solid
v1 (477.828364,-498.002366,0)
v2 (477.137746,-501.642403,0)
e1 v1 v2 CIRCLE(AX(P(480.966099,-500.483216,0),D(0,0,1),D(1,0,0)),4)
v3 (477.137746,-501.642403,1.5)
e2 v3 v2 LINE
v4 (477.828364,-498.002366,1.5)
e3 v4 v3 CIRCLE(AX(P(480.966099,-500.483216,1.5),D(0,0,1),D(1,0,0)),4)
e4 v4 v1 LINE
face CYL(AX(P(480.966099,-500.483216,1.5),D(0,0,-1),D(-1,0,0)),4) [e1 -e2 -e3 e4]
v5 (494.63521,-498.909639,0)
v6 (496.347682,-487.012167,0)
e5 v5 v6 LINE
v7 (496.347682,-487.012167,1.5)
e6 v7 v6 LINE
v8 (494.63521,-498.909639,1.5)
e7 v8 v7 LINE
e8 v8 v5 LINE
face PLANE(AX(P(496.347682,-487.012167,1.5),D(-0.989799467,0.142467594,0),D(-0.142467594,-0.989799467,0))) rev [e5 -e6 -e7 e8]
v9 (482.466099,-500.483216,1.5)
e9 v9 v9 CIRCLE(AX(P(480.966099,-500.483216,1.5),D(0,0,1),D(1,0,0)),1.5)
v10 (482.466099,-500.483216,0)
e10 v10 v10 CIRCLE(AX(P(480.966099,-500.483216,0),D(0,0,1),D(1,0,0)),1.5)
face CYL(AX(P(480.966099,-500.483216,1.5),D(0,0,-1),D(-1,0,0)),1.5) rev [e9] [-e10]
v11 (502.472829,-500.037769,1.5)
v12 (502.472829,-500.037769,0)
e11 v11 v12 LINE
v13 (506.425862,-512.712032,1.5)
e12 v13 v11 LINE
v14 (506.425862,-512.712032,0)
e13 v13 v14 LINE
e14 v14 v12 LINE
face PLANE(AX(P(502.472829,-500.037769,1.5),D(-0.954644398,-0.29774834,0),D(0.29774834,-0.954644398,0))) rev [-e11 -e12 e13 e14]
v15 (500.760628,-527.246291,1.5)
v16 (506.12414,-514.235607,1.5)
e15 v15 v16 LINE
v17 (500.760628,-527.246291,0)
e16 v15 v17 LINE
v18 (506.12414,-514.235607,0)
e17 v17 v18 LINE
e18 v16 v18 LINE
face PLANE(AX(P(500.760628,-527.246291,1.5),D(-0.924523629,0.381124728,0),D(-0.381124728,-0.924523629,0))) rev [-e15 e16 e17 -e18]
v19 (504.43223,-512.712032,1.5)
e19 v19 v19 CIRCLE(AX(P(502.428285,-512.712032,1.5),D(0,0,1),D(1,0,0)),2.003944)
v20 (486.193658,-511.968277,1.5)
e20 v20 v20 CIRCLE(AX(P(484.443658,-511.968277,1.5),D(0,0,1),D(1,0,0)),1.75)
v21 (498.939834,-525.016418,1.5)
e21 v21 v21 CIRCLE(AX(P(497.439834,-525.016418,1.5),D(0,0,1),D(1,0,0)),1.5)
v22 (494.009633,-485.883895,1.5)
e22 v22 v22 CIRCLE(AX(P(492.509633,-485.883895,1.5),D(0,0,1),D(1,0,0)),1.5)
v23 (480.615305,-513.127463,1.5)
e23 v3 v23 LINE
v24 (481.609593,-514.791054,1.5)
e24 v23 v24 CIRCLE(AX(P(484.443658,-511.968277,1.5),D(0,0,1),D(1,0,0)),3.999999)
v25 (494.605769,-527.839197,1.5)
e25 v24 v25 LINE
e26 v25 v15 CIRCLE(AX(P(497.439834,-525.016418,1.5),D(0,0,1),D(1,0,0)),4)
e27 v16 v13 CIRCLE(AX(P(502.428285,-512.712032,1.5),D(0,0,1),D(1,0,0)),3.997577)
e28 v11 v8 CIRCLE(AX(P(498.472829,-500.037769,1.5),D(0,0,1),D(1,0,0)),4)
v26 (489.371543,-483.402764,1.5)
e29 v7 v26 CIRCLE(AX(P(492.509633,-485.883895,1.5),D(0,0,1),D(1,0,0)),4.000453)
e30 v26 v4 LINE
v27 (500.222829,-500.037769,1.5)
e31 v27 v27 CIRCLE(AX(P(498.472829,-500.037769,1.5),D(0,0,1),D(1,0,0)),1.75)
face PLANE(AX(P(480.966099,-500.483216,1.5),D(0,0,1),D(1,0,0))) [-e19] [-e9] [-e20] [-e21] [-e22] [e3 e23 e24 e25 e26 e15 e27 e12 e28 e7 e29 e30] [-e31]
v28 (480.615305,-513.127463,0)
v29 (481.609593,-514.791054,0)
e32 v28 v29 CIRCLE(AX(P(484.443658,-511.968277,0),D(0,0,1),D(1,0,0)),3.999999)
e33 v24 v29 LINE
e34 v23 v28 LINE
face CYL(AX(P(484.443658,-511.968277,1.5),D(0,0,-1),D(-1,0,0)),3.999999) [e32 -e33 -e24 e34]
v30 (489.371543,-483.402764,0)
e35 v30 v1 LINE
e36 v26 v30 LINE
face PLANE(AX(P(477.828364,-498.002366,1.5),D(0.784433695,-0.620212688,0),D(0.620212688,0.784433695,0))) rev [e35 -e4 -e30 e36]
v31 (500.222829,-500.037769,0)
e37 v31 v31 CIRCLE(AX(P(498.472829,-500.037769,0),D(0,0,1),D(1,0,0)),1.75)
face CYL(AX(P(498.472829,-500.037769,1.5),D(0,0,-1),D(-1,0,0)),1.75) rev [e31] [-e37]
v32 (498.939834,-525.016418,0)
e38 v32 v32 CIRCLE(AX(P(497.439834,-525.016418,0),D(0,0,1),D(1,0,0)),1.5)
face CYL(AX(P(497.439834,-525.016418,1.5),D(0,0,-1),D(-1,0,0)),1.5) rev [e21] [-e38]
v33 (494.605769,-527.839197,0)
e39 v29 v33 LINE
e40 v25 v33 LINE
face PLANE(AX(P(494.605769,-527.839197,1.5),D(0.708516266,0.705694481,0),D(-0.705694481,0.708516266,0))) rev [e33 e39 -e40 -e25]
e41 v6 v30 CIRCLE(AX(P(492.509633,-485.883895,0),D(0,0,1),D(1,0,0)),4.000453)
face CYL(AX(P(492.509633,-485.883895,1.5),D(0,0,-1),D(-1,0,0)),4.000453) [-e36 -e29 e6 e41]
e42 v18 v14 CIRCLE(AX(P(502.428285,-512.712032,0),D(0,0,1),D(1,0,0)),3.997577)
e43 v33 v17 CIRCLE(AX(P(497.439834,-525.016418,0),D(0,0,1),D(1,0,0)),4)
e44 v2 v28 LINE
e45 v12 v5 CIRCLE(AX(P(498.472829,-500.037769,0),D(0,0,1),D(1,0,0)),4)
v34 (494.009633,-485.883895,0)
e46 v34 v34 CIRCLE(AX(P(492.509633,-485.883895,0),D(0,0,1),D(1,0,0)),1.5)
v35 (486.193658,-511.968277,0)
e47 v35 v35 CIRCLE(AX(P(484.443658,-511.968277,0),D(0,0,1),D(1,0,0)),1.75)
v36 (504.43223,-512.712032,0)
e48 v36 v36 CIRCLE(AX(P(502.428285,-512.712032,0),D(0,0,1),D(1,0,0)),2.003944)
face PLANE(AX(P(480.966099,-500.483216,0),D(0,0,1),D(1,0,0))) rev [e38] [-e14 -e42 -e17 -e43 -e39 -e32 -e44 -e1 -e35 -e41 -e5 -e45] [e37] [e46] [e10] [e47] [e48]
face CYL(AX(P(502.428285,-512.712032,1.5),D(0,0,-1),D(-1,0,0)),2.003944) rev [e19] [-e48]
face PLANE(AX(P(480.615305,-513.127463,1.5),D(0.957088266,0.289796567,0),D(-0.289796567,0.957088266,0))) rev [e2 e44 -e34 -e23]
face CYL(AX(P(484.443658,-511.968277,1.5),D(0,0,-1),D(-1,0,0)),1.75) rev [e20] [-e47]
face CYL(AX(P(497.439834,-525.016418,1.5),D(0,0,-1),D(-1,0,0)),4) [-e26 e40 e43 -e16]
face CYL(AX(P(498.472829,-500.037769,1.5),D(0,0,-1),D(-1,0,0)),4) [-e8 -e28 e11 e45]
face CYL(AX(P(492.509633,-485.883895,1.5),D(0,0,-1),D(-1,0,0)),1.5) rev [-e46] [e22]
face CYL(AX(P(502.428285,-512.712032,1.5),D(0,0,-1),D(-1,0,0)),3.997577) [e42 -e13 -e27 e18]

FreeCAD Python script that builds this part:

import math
import FreeCAD as App
import Part
import Sketcher

V = App.Vector

doc = App.newDocument("Part")
body = doc.addObject("PartDesign::Body", "Body")

sketch1 = doc.addObject("Sketcher::SketchObject", "Sketch")
body.addObject(sketch1)
sketch1.AttachmentSupport = (doc.XY_Plane, [""])
sketch1.MapMode = "FlatFace"
sketch1.addGeometry(Part.LineSegment(V(481.609593, -514.791054, 0), V(494.605769, -527.839197, 0)), False)
sketch1.addGeometry(Part.ArcOfCircle(Part.Circle(V(497.439834, -525.016418, 0), V(0, 0, 1), 4), math.radians(-135.114323), math.radians(-33.880888)), False)
sketch1.addGeometry(Part.LineSegment(V(500.760628, -527.246291, 0), V(506.12414, -514.235607, 0)), False)
sketch1.addGeometry(Part.ArcOfCircle(Part.Circle(V(502.428285, -512.712032, 0), V(0, 0, 1), 3.997577), math.radians(-22.403368), math.radians(0)), False)
sketch1.addGeometry(Part.LineSegment(V(506.425862, -512.712032, 0), V(502.472829, -500.037769, 0)), False)
sketch1.addGeometry(Part.ArcOfCircle(Part.Circle(V(498.472829, -500.037769, 0), V(0, 0, 1), 4), math.radians(0), math.radians(163.618446)), False)
sketch1.addGeometry(Part.LineSegment(V(494.63521, -498.909639, 0), V(496.347682, -487.012167, 0)), False)
sketch1.addGeometry(Part.ArcOfCircle(Part.Circle(V(492.509633, -485.883895, 0), V(0, 0, 1), 4.000453), math.radians(-16.381759), math.radians(141.668332)), False)
sketch1.addGeometry(Part.LineSegment(V(489.371543, -483.402764, 0), V(477.828364, -498.002366, 0)), False)
sketch1.addGeometry(Part.ArcOfCircle(Part.Circle(V(480.966099, -500.483216, 0), V(0, 0, 1), 4), math.radians(141.668332), math.radians(196.845777)), False)
sketch1.addGeometry(Part.LineSegment(V(477.137746, -501.642403, 0), V(480.615305, -513.127463, 0)), False)
sketch1.addGeometry(Part.ArcOfCircle(Part.Circle(V(484.443658, -511.968277, 0), V(0, 0, 1), 3.999999), math.radians(-163.154223), math.radians(-135.114323)), False)
sketch1.addGeometry(Part.Circle(V(497.439834, -525.016418, 0), V(0, 0, 1), 1.5), False)
sketch1.addGeometry(Part.Circle(V(502.428285, -512.712032, 0), V(0, 0, 1), 2.003944), False)
sketch1.addGeometry(Part.Circle(V(484.443658, -511.968277, 0), V(0, 0, 1), 1.75), False)
sketch1.addGeometry(Part.Circle(V(498.472829, -500.037769, 0), V(0, 0, 1), 1.75), False)
sketch1.addGeometry(Part.Circle(V(492.509633, -485.883895, 0), V(0, 0, 1), 1.5), False)
sketch1.addGeometry(Part.Circle(V(480.966099, -500.483216, 0), V(0, 0, 1), 1.5), False)
sketch1.addConstraint(Sketcher.Constraint("Coincident", 0, 2, 1, 1))
sketch1.addConstraint(Sketcher.Constraint("Coincident", 1, 2, 2, 1))
sketch1.addConstraint(Sketcher.Constraint("Coincident", 2, 2, 3, 1))
sketch1.addConstraint(Sketcher.Constraint("Coincident", 3, 2, 4, 1))
sketch1.addConstraint(Sketcher.Constraint("Coincident", 4, 2, 5, 1))
sketch1.addConstraint(Sketcher.Constraint("Coincident", 5, 2, 6, 1))
sketch1.addConstraint(Sketcher.Constraint("Coincident", 6, 2, 7, 1))
sketch1.addConstraint(Sketcher.Constraint("Coincident", 7, 2, 8, 1))
sketch1.addConstraint(Sketcher.Constraint("Coincident", 8, 2, 9, 1))
sketch1.addConstraint(Sketcher.Constraint("Coincident", 9, 2, 10, 1))
sketch1.addConstraint(Sketcher.Constraint("Coincident", 10, 2, 11, 1))
sketch1.addConstraint(Sketcher.Constraint("Coincident", 11, 2, 0, 1))
sketch1.addConstraint(Sketcher.Constraint("Coincident", 12, 3, 1, 3))
sketch1.addConstraint(Sketcher.Constraint("Coincident", 13, 3, 3, 3))
sketch1.addConstraint(Sketcher.Constraint("Coincident", 14, 3, 11, 3))
sketch1.addConstraint(Sketcher.Constraint("Coincident", 15, 3, 5, 3))
sketch1.addConstraint(Sketcher.Constraint("Coincident", 16, 3, 7, 3))
sketch1.addConstraint(Sketcher.Constraint("Coincident", 17, 3, 9, 3))
sketch1.addConstraint(Sketcher.Constraint("Diameter", 12, 3.0))
sketch1.addConstraint(Sketcher.Constraint("Diameter", 16, 3.0))
sketch1.addConstraint(Sketcher.Constraint("Diameter", 17, 3.0))
sketch1.addConstraint(Sketcher.Constraint("Radius", 1, 4.0))
sketch1.addConstraint(Sketcher.Constraint("Radius", 5, 4.0))
sketch1.addConstraint(Sketcher.Constraint("Radius", 9, 4.0))
sketch1.addConstraint(Sketcher.Constraint("Radius", 11, 3.999999))
sketch1.addConstraint(Sketcher.Constraint("Diameter", 14, 3.5))
sketch1.addConstraint(Sketcher.Constraint("Diameter", 15, 3.5))
sketch1.addConstraint(Sketcher.Constraint("Distance", 10, 12.000001))
sketch1.addConstraint(Sketcher.Constraint("Diameter", 13, 4.007888))
sketch1.addConstraint(Sketcher.Constraint("Radius", 3, 3.997577))
sketch1.addConstraint(Sketcher.Constraint("Radius", 7, 4.000453))
sketch1.addConstraint(Sketcher.Constraint("DistanceX", -1, 1, 9, 3, 480.966099))
sketch1.addConstraint(Sketcher.Constraint("DistanceX", 7, 3, 1, 3, 4.930201))
sketch1.addConstraint(Sketcher.Constraint("Distance", 0, 18.416151))
sketch1.addConstraint(Sketcher.Constraint("Distance", 2, 14.072852))
sketch1.addConstraint(Sketcher.Constraint("DistanceY", 1, 3, -1, 1, 525.016418))
sketch1.addConstraint(Sketcher.Constraint("DistanceY", 3, 3, -1, 1, 512.712032))
sketch1.addConstraint(Sketcher.Constraint("DistanceX", -1, 1, 5, 3, 498.472829))
sketch1.addConstraint(Sketcher.Constraint("DistanceY", 5, 3, -1, 1, 500.037769))
sketch1.addConstraint(Sketcher.Constraint("DistanceX", -1, 1, 0, 2, 494.605769))
sketch1.addConstraint(Sketcher.Constraint("DistanceY", 1, 2, -1, 1, 527.246291))
sketch1.addConstraint(Sketcher.Constraint("DistanceX", -1, 1, 2, 2, 506.12414))
sketch1.addConstraint(Sketcher.Constraint("DistanceY", 3, 2, -1, 1, 512.712032))
sketch1.addConstraint(Sketcher.Constraint("DistanceY", 4, 2, -1, 1, 500.037769))
sketch1.addConstraint(Sketcher.Constraint("DistanceX", -1, 1, 5, 2, 494.63521))
sketch1.addConstraint(Sketcher.Constraint("DistanceX", 1, 3, 3, 3, 4.988451))
sketch1.addConstraint(Sketcher.Constraint("DistanceY", 9, 3, 7, 3, 14.599321))
sketch1.addConstraint(Sketcher.Constraint("DistanceX", 9, 3, 11, 3, 3.477558))
sketch1.addConstraint(Sketcher.Constraint("DistanceY", 11, 3, 9, 3, 11.48506))
sketch1.addConstraint(Sketcher.Constraint("DistanceY", 1, 3, 11, 3, 13.048142))
sketch1.addConstraint(Sketcher.Constraint("DistanceX", 7, 3, 6, 2, 3.83805))
sketch1.addConstraint(Sketcher.Constraint("DistanceX", 7, 2, 16, 3, 3.13809))
sketch1.addConstraint(Sketcher.Constraint("DistanceY", 9, 3, 8, 2, 2.480851))
sketch1.addConstraint(Sketcher.Constraint("DistanceX", 9, 2, 8, 2, 0.690618))
pad1 = doc.addObject("PartDesign::Pad", "Pad")
body.addObject(pad1)
pad1.Profile = sketch1
pad1.Length = 1.5

doc.recompute()
